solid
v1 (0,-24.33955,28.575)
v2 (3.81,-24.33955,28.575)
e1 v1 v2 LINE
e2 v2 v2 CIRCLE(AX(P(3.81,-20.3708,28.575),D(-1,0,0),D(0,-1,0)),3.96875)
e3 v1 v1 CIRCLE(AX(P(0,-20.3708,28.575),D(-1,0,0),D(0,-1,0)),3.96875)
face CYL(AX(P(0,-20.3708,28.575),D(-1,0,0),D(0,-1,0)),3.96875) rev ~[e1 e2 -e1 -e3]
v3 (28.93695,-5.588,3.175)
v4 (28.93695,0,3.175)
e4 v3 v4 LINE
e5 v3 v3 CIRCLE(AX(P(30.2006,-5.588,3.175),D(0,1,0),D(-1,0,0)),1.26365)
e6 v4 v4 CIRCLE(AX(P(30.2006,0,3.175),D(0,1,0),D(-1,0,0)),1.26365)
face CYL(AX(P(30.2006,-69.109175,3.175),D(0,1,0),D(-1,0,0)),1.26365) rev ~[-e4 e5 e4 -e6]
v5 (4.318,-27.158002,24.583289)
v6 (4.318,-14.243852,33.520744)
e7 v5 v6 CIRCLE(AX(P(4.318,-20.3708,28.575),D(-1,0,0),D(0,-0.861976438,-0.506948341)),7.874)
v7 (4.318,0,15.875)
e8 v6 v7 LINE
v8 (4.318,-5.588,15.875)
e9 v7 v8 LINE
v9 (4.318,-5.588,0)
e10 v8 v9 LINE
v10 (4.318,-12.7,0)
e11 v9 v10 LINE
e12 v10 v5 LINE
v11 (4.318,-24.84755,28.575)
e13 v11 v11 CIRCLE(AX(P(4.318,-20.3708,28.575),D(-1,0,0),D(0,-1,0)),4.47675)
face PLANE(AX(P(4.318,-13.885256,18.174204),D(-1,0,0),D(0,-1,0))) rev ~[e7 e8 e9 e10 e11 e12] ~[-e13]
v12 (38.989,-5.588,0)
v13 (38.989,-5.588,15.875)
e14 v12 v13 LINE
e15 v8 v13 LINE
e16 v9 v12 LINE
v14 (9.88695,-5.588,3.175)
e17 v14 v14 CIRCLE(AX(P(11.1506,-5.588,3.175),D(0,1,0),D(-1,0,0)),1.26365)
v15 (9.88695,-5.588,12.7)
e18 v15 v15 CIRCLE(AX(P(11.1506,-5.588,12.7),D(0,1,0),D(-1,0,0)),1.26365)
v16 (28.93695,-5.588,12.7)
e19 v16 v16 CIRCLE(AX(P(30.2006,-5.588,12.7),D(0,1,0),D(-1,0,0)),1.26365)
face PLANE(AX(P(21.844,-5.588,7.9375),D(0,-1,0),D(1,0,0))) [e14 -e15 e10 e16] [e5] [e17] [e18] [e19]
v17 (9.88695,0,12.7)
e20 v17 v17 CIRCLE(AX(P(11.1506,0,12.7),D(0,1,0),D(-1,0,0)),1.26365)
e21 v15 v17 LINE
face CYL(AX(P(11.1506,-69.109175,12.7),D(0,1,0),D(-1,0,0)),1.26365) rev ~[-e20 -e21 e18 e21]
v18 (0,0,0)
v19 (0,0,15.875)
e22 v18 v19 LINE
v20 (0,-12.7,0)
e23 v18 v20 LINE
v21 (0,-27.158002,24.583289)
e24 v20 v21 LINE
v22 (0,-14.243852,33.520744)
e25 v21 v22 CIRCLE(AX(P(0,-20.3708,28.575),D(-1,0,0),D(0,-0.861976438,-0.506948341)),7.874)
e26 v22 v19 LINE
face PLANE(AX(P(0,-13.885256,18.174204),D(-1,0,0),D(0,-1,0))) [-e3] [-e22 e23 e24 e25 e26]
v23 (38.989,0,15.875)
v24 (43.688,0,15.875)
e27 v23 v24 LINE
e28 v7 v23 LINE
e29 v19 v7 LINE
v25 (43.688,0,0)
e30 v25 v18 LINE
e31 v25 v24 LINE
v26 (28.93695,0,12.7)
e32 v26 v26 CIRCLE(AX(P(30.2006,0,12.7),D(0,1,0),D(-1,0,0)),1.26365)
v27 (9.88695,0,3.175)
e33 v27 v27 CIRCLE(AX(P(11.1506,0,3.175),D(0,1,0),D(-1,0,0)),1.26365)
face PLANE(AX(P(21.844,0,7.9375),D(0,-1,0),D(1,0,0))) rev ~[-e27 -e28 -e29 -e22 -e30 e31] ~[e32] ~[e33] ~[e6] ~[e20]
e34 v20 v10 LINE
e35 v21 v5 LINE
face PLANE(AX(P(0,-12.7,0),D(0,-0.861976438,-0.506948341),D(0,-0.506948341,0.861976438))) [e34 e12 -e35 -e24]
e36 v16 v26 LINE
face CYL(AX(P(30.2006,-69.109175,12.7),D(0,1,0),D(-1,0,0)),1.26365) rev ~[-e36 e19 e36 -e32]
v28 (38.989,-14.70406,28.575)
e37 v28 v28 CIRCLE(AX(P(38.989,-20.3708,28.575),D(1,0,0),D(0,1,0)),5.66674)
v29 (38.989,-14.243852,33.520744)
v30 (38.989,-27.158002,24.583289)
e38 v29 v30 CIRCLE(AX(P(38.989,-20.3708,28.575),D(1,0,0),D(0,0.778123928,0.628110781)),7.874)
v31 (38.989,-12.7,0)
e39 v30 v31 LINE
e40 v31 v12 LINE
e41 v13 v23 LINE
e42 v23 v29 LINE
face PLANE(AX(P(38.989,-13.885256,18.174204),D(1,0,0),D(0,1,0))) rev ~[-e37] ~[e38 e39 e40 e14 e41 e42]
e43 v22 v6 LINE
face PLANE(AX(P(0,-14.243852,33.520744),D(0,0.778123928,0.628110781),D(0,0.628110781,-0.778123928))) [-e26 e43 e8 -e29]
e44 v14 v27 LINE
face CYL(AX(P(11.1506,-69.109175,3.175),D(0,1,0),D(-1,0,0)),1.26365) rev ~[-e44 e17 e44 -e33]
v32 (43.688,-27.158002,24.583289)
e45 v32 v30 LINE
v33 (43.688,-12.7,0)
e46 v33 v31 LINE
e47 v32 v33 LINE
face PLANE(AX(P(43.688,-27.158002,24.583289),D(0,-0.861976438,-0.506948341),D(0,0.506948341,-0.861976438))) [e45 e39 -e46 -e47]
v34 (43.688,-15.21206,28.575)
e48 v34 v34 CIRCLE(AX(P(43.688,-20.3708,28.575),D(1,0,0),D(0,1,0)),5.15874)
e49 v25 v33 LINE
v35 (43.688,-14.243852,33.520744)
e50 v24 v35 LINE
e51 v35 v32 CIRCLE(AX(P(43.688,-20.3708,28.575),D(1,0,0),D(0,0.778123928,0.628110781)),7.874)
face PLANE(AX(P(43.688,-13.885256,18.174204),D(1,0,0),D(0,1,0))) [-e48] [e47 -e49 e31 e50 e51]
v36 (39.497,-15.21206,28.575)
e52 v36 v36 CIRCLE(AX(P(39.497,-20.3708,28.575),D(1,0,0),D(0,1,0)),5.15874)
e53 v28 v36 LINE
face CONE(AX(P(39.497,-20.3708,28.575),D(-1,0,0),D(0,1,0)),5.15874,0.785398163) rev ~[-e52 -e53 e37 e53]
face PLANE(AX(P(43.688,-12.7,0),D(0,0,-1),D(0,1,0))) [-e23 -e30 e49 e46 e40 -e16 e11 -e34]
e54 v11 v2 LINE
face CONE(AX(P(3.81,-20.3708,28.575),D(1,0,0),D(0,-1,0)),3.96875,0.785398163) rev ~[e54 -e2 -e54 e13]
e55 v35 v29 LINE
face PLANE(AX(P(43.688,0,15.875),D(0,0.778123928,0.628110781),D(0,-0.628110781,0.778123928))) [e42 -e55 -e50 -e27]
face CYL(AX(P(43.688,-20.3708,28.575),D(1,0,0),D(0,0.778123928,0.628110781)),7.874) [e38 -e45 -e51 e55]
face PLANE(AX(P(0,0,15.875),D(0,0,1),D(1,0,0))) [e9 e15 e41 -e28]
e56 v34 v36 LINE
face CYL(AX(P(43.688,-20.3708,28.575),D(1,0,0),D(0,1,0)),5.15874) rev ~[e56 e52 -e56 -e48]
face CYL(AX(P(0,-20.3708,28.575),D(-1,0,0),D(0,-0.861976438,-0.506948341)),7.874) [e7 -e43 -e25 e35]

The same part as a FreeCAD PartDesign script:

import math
import FreeCAD as App
import Part
import Sketcher
from FreeCAD import Vector
Q = App.Units.Quantity


def edges_at(feature, points):
    """Names of the edges that pass closest to the given points."""
    edges = feature.Shape.Edges
    near = lambda p: min(range(len(edges)), key=lambda i: edges[i].distToShape(Part.Vertex(*p))[0])
    return sorted({f"Edge{near(p) + 1}" for p in points})


def add_polygon(sketch, points):
    """Adds a closed chain of lines whose ends are joined by coincident constraints."""
    first, n = sketch.GeometryCount, len(points)
    for a, b in zip(points, points[1:] + points[:1]):
        sketch.addGeometry(Part.LineSegment(App.Vector(*a, 0), App.Vector(*b, 0)), False)
    for i in range(n):
        sketch.addConstraint(Sketcher.Constraint("Coincident", first + i, 2, first + (i + 1) % n, 1))

doc = App.newDocument("Part")
body = doc.addObject("PartDesign::Body", "Body")

sketch1 = doc.addObject("Sketcher::SketchObject", "Sketch")
body.addObject(sketch1)
sketch1.AttachmentSupport = (doc.XZ_Plane, [""])
sketch1.MapMode = "FlatFace"
add_polygon(sketch1, [(0, 16), (0, 0), (44, 0), (44, 16)])
sketch1.addConstraint(Sketcher.Constraint("Vertical", 0))
sketch1.addConstraint(Sketcher.Constraint("Horizontal", 1))
sketch1.addConstraint(Sketcher.Constraint("Vertical", 2))
sketch1.addConstraint(Sketcher.Constraint("Horizontal", 3))
sketch1.addConstraint(Sketcher.Constraint("Coincident", 0, 2, -1, 1))
sketch1.addConstraint(Sketcher.Constraint("DistanceX", 1, 1, 1, 2, Q("1.72 in")))
sketch1.addConstraint(Sketcher.Constraint("DistanceY", 0, 2, 0, 1, Q("0.625 in")))
pad1 = doc.addObject("PartDesign::Pad", "Pad")
body.addObject(pad1)
pad1.Profile = sketch1
pad1.Length = Q("0.22 in")

sketch2 = doc.addObject("Sketcher::SketchObject", "Sketch001")
body.addObject(sketch2)
sketch2.AttachmentSupport = (doc.YZ_Plane, [""])
sketch2.MapMode = "FlatFace"
sketch2.AttachmentOffset = App.Placement(Vector(0, 0, 1.72 * 25.4), App.Rotation())
sketch2.addGeometry(Part.LineSegment(Vector(-13, 0, 0), Vector(-6, 0, 0)), False)
sketch2.addGeometry(Part.LineSegment(Vector(-6, 0, 0), Vector(-6, 16, 0)), False)
sketch2.addGeometry(Part.LineSegment(Vector(-6, 16, 0), Vector(0, 16, 0)), False)
sketch2.addGeometry(Part.LineSegment(Vector(0, 16, 0), Vector(-14, 34, 0)), False)
sketch2.addGeometry(Part.ArcOfCircle(Part.Circle(Vector(-20, 29, 0), Vector(0, 0, 1), 8), math.radians(39), math.radians(210)), False)
sketch2.addGeometry(Part.LineSegment(Vector(-27, 25, 0), Vector(-13, 0, 0)), False)
sketch2.addGeometry(Part.Circle(Vector(-20, 29, 0), Vector(0, 0, 1), 5), False)
sketch2.addConstraint(Sketcher.Constraint("Coincident", 0, 2, 1, 1))
sketch2.addConstraint(Sketcher.Constraint("Coincident", 1, 2, 2, 1))
sketch2.addConstraint(Sketcher.Constraint("Coincident", 2, 2, 3, 1))
sketch2.addConstraint(Sketcher.Constraint("Tangent", 3, 2, 4, 1))
sketch2.addConstraint(Sketcher.Constraint("Tangent", 4, 2, 5, 1))
sketch2.addConstraint(Sketcher.Constraint("Coincident", 5, 2, 0, 1))
sketch2.addConstraint(Sketcher.Constraint("Horizontal", 0))
sketch2.addConstraint(Sketcher.Constraint("Vertical", 1))
sketch2.addConstraint(Sketcher.Constraint("Horizontal", 2))
sketch2.addConstraint(Sketcher.Constraint("Coincident", 6, 3, 4, 3))
sketch2.addConstraint(Sketcher.Constraint("PointOnObject", 0, 2, -1))
sketch2.addConstraint(Sketcher.Constraint("PointOnObject", 2, 2, -2))
sketch2.addConstraint(Sketcher.Constraint("Radius", 4, Q("0.31 in")))
sketch2.addConstraint(Sketcher.Constraint("Diameter", 6, Q("0.4062 in")))
sketch2.addConstraint(Sketcher.Constraint("DistanceX", 0, 1, 0, 2, Q("0.28 in")))
sketch2.addConstraint(Sketcher.Constraint("DistanceX", 2, 1, 2, 2, Q("0.22 in")))
sketch2.addConstraint(Sketcher.Constraint("DistanceY", 1, 2, 4, 3, Q("0.5 in")))
sketch2.addConstraint(Sketcher.Constraint("DistanceY", 1, 1, 1, 2, Q("0.625 in")))
sketch2.addConstraint(Sketcher.Constraint("DistanceX", 4, 3, -1, 1, Q("0.802 in")))
pad2 = doc.addObject("PartDesign::Pad", "Pad001")
body.addObject(pad2)
pad2.Profile = sketch2
pad2.Length = Q("0.185 in")
pad2.Reversed = True

sketch3 = doc.addObject("Sketcher::SketchObject", "Sketch002")
body.addObject(sketch3)
sketch3.AttachmentSupport = (doc.YZ_Plane, [""])
sketch3.MapMode = "FlatFace"
sketch3.addGeometry(Part.LineSegment(Vector(-14.2, 33.5, 0), Vector(0, 15.9, 0)), False)
sketch3.addGeometry(Part.LineSegment(Vector(0, 15.9, 0), Vector(0, 0, 0)), False)
sketch3.addGeometry(Part.LineSegment(Vector(0, 0, 0), Vector(-12.7, 0, 0)), False)
sketch3.addGeometry(Part.LineSegment(Vector(-12.7, 0, 0), Vector(-27.2, 24.6, 0)), False)
sketch3.addGeometry(Part.ArcOfCircle(Part.Circle(Vector(-20.4, 28.6, 0), Vector(0, 0, 1), 7.9), math.radians(39), math.radians(210)), False)
sketch3.addGeometry(Part.Circle(Vector(-20.4, 28.6, 0), Vector(0, 0, 1), 4), False)
sketch3.addConstraint(Sketcher.Constraint("Coincident", 0, 2, 1, 1))
sketch3.addConstraint(Sketcher.Constraint("Coincident", 1, 2, 2, 1))
sketch3.addConstraint(Sketcher.Constraint("Coincident", 2, 2, 3, 1))
sketch3.addConstraint(Sketcher.Constraint("Tangent", 3, 2, 4, 2))
sketch3.addConstraint(Sketcher.Constraint("Tangent", 4, 1, 0, 1))
sketch3.addConstraint(Sketcher.Constraint("Vertical", 1))
sketch3.addConstraint(Sketcher.Constraint("Horizontal", 2))
sketch3.addConstraint(Sketcher.Constraint("Coincident", 1, 2, -1, 1))
sketch3.addConstraint(Sketcher.Constraint("Coincident", 5, 3, 4, 3))
sketch3.addConstraint(Sketcher.Constraint("Radius", 4, Q("0.31 in")))
sketch3.addConstraint(Sketcher.Constraint("Diameter", 5, Q("0.3125 in")))
sketch3.addConstraint(Sketcher.Constraint("DistanceX", 2, 2, 2, 1, Q("0.5 in")))
sketch3.addConstraint(Sketcher.Constraint("DistanceY", 0, 2, 4, 3, Q("0.5 in")))
sketch3.addConstraint(Sketcher.Constraint("DistanceY", 1, 2, 1, 1, Q("0.625 in")))
sketch3.addConstraint(Sketcher.Constraint("DistanceX", 4, 3, -1, 1, Q("0.802 in")))
pad3 = doc.addObject("PartDesign::Pad", "Pad002")
body.addObject(pad3)
pad3.Profile = sketch3
pad3.Length = Q("0.17 in")

sketch4 = doc.addObject("Sketcher::SketchObject", "Sketch003")
body.addObject(sketch4)
sketch4.AttachmentSupport = (doc.XZ_Plane, [""])
sketch4.MapMode = "FlatFace"
sketch4.AttachmentOffset = App.Placement(Vector(0, 0, 0.22 * 25.4), App.Rotation())
sketch4.addGeometry(Part.Circle(Vector(11.2, 12.7, 0), Vector(0, 0, 1), 1.3), False)
sketch4.addGeometry(Part.Circle(Vector(30.2, 12.7, 0), Vector(0, 0, 1), 1.3), False)
sketch4.addGeometry(Part.Circle(Vector(30.2, 3.2, 0), Vector(0, 0, 1), 1.3), False)
sketch4.addGeometry(Part.Circle(Vector(11.2, 3.2, 0), Vector(0, 0, 1), 1.3), False)
sketch4.addConstraint(Sketcher.Constraint("Equal", 0, 1))
sketch4.addConstraint(Sketcher.Constraint("Equal", 1, 2))
sketch4.addConstraint(Sketcher.Constraint("Equal", 2, 3))
sketch4.addConstraint(Sketcher.Constraint("Horizontal", 0, 3, 1, 3))
sketch4.addConstraint(Sketcher.Constraint("Horizontal", 2, 3, 3, 3))
sketch4.addConstraint(Sketcher.Constraint("Vertical", 1, 3, 2, 3))
sketch4.addConstraint(Sketcher.Constraint("Vertical", 0, 3, 3, 3))
sketch4.addConstraint(Sketcher.Constraint("Diameter", 0, Q("0.0995 in")))
sketch4.addConstraint(Sketcher.Constraint("DistanceY", -1, 1, 0, 3, Q("0.5 in")))
sketch4.addConstraint(Sketcher.Constraint("DistanceX", 0, 3, 1, 3, Q("0.75 in")))
sketch4.addConstraint(Sketcher.Constraint("DistanceX", -1, 1, 0, 3, Q("0.439 in")))
sketch4.addConstraint(Sketcher.Constraint("DistanceY", -1, 1, 2, 3, Q("0.125 in")))
doc.recompute()
hole = doc.addObject("PartDesign::Hole", "Hole")
body.addObject(hole)
hole.Profile = sketch4
hole.ThreadType = "None"
hole.Diameter = Q("0.0995 in")
hole.DepthType = "ThroughAll"
doc.recompute()

chamfer = doc.addObject("PartDesign::Chamfer", "Chamfer")
body.addObject(chamfer)
chamfer.Base = (hole, edges_at(hole, [(4.318, -16.402, 28.575), (38.989, -25.53, 28.575)]))
chamfer.Size = Q("0.02 in")

doc.recompute()
